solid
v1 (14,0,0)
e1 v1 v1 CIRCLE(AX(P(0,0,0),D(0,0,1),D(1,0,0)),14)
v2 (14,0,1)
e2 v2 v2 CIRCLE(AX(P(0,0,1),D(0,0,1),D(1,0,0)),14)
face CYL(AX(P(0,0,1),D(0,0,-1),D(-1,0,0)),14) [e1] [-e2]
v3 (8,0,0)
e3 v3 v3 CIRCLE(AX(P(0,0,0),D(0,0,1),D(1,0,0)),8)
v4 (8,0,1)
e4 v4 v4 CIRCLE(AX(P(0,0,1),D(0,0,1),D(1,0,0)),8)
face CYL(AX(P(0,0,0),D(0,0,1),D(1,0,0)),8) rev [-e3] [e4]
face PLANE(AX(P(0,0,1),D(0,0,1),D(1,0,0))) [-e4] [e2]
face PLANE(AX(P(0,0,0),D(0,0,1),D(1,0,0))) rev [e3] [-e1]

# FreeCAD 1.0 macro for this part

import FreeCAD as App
import Part
import Sketcher
from FreeCAD import Vector

doc = App.newDocument("Part")
body = doc.addObject("PartDesign::Body", "Body")

# Sketch on XY plane
sketch1 = body.newObject("Sketcher::SketchObject", "Sketch")
sketch1.AttachmentSupport = (doc.getObject("XY_Plane"), [""])
sketch1.MapMode = "FlatFace"
sketch1.addGeometry(Part.Circle(Vector(0, 0, 0), Vector(0, 0, 1), 14), False)
sketch1.addConstraint(Sketcher.Constraint("Coincident", 0, 3, -1, 1))
sketch1.addConstraint(Sketcher.Constraint("Diameter", 0, 28.0))
pad1 = body.newObject("PartDesign::Pad", "Pad")
pad1.Profile = sketch1
pad1.Length = 1

# Sketch on XY plane
sketch2 = body.newObject("Sketcher::SketchObject", "Sketch001")
sketch2.AttachmentSupport = (doc.getObject("XY_Plane"), [""])
sketch2.MapMode = "FlatFace"
sketch2.AttachmentOffset = App.Placement(Vector(0, 0, 1), App.Rotation())
sketch2.addGeometry(Part.Circle(Vector(0, 0, 0), Vector(0, 0, 1), 8), False)
sketch2.addConstraint(Sketcher.Constraint("Coincident", 0, 3, -1, 1))
sketch2.addConstraint(Sketcher.Constraint("Diameter", 0, 16.0))
pocket1 = body.newObject("PartDesign::Pocket", "Pocket")
pocket1.Profile = sketch2
pocket1.Length = 1

doc.recompute()
